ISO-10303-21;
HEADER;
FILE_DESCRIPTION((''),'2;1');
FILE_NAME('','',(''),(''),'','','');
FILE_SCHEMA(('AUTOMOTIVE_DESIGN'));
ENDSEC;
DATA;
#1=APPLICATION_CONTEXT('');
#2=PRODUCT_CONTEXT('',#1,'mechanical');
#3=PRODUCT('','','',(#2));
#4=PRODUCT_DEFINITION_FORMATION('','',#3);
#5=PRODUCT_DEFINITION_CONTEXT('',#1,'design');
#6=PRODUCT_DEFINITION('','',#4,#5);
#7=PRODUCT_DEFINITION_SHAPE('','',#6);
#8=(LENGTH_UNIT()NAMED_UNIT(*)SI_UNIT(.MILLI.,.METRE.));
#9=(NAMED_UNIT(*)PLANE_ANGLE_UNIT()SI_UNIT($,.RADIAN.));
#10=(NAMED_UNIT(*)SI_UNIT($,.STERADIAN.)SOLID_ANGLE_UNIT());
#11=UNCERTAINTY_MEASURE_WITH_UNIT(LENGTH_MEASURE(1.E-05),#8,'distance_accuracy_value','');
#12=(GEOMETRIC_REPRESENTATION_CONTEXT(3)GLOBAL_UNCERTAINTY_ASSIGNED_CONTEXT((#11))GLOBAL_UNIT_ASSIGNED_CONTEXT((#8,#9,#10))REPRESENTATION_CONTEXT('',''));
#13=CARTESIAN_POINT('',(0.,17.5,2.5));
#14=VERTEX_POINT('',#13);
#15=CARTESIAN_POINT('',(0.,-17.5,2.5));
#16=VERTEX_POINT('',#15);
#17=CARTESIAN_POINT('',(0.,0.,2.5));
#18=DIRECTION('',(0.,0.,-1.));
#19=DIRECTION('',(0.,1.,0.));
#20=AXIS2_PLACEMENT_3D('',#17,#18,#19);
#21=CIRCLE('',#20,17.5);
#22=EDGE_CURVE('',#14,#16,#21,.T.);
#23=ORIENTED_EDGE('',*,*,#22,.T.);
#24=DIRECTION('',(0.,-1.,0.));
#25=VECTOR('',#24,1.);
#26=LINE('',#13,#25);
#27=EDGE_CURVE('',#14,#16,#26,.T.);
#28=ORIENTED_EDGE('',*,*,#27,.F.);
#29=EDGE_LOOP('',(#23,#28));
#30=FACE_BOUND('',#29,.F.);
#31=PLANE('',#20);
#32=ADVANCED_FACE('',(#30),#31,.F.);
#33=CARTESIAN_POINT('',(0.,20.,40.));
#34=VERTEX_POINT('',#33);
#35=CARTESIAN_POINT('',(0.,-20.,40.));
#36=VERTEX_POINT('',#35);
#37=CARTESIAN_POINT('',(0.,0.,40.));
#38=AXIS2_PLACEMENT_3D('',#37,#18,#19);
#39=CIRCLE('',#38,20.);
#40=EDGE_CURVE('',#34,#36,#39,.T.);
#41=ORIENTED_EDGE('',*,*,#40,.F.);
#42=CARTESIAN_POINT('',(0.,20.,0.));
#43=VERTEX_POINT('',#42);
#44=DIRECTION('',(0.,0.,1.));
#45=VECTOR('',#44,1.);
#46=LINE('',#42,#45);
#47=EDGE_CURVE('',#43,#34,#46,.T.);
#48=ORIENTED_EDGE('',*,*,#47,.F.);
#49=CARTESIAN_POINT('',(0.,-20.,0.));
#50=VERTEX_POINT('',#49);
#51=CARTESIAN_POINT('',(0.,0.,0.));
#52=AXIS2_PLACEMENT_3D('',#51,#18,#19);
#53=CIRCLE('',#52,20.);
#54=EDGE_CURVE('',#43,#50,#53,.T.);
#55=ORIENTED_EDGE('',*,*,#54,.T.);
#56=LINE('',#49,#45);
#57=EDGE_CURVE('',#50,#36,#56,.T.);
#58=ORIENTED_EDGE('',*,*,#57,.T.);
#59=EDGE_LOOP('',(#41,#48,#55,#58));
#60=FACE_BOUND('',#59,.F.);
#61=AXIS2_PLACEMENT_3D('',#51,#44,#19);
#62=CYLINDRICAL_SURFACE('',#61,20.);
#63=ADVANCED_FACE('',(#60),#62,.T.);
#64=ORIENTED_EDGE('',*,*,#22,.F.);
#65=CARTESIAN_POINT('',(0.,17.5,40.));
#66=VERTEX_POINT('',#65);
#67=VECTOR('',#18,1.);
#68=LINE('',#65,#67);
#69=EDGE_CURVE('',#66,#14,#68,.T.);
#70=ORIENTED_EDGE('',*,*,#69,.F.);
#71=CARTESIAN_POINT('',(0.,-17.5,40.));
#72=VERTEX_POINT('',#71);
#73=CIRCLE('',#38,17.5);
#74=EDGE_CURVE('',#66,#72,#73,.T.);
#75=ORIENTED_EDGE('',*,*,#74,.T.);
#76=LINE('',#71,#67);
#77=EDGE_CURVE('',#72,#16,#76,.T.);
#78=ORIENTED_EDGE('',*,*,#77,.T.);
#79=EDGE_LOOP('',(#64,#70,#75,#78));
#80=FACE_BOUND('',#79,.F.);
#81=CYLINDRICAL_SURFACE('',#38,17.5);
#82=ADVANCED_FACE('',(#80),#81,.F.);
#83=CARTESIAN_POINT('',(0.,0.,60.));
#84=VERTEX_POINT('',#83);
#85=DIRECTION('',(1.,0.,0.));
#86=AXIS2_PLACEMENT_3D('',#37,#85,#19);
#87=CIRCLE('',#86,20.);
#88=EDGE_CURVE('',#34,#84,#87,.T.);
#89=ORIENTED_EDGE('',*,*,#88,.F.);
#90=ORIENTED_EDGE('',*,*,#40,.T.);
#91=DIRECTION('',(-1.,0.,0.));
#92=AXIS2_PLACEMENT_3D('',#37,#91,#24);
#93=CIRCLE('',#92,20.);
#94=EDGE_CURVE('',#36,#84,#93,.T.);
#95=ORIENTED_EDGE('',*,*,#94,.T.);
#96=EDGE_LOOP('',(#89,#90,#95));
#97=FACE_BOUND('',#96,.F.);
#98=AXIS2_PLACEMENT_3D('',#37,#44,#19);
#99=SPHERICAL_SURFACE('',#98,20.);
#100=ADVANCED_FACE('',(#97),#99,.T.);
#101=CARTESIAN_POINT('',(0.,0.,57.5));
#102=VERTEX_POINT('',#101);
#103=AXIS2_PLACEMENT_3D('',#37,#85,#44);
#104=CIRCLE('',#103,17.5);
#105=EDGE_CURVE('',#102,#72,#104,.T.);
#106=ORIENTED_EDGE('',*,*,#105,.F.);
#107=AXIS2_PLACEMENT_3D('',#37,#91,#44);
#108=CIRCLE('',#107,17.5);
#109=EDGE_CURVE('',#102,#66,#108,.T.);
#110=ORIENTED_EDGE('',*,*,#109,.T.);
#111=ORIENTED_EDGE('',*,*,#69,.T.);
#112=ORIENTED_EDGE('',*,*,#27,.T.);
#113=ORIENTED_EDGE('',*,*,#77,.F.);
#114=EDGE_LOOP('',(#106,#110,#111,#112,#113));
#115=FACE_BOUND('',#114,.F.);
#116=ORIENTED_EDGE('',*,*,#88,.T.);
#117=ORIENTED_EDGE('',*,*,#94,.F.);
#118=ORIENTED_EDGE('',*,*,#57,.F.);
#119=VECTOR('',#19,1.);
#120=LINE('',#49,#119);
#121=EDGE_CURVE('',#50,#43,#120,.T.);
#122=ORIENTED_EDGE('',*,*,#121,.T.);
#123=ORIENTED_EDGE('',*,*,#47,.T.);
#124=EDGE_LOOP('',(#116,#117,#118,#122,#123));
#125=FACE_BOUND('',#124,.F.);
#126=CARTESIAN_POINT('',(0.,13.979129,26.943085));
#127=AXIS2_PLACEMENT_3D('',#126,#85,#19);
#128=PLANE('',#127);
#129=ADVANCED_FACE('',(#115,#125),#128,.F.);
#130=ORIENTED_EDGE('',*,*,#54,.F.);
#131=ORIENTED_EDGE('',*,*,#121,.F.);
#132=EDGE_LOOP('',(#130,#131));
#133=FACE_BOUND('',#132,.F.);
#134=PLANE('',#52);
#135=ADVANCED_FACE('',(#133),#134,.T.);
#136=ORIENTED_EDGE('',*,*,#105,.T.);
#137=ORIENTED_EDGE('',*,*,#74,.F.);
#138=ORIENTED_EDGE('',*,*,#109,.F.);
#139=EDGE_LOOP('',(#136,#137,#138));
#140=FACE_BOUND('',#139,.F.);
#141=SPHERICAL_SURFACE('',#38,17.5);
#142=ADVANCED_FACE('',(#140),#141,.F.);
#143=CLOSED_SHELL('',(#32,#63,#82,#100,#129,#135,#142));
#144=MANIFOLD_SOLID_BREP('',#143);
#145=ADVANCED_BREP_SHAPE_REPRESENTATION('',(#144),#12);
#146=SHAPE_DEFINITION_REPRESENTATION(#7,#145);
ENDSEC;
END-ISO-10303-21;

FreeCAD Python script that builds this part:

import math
import FreeCAD as App
import Part
import Sketcher
Q = App.Units.Quantity

doc = App.newDocument("Part")
body = doc.addObject("PartDesign::Body", "Body")

sketch1 = doc.addObject("Sketcher::SketchObject", "Sketch")
body.addObject(sketch1)
sketch1.AttachmentSupport = (doc.YZ_Plane, [""])
sketch1.MapMode = "FlatFace"
sketch1.addGeometry([
    Part.LineSegment(App.Vector(0, 2.5, 0), App.Vector(0, 0, 0)),
    Part.LineSegment(App.Vector(0, 0, 0), App.Vector(20, 0, 0)),
    Part.LineSegment(App.Vector(20, 0, 0), App.Vector(20, 40, 0)),
    Part.ArcOfCircle(Part.Circle(App.Vector(0, 40, 0), App.Vector(0, 0, 1), 20), math.radians(0), math.radians(90)),
    Part.LineSegment(App.Vector(0, 60, 0), App.Vector(0, 57.5, 0)),
    Part.ArcOfCircle(Part.Circle(App.Vector(0, 40, 0), App.Vector(0, 0, 1), 17.5), math.radians(0), math.radians(90)),
    Part.LineSegment(App.Vector(17.5, 40, 0), App.Vector(17.5, 2.5, 0)),
    Part.LineSegment(App.Vector(17.5, 2.5, 0), App.Vector(0, 2.5, 0)),
], False)
sketch1.addConstraint([
    Sketcher.Constraint("Coincident", 0, 2, 1, 1),
    Sketcher.Constraint("Coincident", 1, 2, 2, 1),
    Sketcher.Constraint("Tangent", 2, 2, 3, 1),
    Sketcher.Constraint("Coincident", 3, 2, 4, 1),
    Sketcher.Constraint("Coincident", 4, 2, 5, 2),
    Sketcher.Constraint("Tangent", 5, 1, 6, 1),
    Sketcher.Constraint("Coincident", 6, 2, 7, 1),
    Sketcher.Constraint("Coincident", 7, 2, 0, 1),
    Sketcher.Constraint("Vertical", 0),
    Sketcher.Constraint("Horizontal", 1),
    Sketcher.Constraint("Vertical", 2),
    Sketcher.Constraint("Vertical", 4),
    Sketcher.Constraint("Vertical", 6),
    Sketcher.Constraint("Horizontal", 7),
    Sketcher.Constraint("Coincident", 0, 2, -1, 1),
    Sketcher.Constraint("Coincident", 5, 3, 3, 3),
    Sketcher.Constraint("PointOnObject", 3, 3, -2),
    Sketcher.Constraint("PointOnObject", 3, 2, -2),
    Sketcher.Constraint("Equal", 0, 4),
    Sketcher.Constraint("Radius", 3, Q("20 mm")),
    Sketcher.Constraint("Radius", 5, Q("17.5 mm")),
    Sketcher.Constraint("DistanceY", 2, 1, 2, 2, Q("40 mm")),
])
revolution = doc.addObject("PartDesign::Revolution", "Revolution")
body.addObject(revolution)
revolution.Profile = sketch1
revolution.ReferenceAxis = (sketch1, ["V_Axis"])
revolution.Angle = 180
revolution.Reversed = True

doc.recompute()
